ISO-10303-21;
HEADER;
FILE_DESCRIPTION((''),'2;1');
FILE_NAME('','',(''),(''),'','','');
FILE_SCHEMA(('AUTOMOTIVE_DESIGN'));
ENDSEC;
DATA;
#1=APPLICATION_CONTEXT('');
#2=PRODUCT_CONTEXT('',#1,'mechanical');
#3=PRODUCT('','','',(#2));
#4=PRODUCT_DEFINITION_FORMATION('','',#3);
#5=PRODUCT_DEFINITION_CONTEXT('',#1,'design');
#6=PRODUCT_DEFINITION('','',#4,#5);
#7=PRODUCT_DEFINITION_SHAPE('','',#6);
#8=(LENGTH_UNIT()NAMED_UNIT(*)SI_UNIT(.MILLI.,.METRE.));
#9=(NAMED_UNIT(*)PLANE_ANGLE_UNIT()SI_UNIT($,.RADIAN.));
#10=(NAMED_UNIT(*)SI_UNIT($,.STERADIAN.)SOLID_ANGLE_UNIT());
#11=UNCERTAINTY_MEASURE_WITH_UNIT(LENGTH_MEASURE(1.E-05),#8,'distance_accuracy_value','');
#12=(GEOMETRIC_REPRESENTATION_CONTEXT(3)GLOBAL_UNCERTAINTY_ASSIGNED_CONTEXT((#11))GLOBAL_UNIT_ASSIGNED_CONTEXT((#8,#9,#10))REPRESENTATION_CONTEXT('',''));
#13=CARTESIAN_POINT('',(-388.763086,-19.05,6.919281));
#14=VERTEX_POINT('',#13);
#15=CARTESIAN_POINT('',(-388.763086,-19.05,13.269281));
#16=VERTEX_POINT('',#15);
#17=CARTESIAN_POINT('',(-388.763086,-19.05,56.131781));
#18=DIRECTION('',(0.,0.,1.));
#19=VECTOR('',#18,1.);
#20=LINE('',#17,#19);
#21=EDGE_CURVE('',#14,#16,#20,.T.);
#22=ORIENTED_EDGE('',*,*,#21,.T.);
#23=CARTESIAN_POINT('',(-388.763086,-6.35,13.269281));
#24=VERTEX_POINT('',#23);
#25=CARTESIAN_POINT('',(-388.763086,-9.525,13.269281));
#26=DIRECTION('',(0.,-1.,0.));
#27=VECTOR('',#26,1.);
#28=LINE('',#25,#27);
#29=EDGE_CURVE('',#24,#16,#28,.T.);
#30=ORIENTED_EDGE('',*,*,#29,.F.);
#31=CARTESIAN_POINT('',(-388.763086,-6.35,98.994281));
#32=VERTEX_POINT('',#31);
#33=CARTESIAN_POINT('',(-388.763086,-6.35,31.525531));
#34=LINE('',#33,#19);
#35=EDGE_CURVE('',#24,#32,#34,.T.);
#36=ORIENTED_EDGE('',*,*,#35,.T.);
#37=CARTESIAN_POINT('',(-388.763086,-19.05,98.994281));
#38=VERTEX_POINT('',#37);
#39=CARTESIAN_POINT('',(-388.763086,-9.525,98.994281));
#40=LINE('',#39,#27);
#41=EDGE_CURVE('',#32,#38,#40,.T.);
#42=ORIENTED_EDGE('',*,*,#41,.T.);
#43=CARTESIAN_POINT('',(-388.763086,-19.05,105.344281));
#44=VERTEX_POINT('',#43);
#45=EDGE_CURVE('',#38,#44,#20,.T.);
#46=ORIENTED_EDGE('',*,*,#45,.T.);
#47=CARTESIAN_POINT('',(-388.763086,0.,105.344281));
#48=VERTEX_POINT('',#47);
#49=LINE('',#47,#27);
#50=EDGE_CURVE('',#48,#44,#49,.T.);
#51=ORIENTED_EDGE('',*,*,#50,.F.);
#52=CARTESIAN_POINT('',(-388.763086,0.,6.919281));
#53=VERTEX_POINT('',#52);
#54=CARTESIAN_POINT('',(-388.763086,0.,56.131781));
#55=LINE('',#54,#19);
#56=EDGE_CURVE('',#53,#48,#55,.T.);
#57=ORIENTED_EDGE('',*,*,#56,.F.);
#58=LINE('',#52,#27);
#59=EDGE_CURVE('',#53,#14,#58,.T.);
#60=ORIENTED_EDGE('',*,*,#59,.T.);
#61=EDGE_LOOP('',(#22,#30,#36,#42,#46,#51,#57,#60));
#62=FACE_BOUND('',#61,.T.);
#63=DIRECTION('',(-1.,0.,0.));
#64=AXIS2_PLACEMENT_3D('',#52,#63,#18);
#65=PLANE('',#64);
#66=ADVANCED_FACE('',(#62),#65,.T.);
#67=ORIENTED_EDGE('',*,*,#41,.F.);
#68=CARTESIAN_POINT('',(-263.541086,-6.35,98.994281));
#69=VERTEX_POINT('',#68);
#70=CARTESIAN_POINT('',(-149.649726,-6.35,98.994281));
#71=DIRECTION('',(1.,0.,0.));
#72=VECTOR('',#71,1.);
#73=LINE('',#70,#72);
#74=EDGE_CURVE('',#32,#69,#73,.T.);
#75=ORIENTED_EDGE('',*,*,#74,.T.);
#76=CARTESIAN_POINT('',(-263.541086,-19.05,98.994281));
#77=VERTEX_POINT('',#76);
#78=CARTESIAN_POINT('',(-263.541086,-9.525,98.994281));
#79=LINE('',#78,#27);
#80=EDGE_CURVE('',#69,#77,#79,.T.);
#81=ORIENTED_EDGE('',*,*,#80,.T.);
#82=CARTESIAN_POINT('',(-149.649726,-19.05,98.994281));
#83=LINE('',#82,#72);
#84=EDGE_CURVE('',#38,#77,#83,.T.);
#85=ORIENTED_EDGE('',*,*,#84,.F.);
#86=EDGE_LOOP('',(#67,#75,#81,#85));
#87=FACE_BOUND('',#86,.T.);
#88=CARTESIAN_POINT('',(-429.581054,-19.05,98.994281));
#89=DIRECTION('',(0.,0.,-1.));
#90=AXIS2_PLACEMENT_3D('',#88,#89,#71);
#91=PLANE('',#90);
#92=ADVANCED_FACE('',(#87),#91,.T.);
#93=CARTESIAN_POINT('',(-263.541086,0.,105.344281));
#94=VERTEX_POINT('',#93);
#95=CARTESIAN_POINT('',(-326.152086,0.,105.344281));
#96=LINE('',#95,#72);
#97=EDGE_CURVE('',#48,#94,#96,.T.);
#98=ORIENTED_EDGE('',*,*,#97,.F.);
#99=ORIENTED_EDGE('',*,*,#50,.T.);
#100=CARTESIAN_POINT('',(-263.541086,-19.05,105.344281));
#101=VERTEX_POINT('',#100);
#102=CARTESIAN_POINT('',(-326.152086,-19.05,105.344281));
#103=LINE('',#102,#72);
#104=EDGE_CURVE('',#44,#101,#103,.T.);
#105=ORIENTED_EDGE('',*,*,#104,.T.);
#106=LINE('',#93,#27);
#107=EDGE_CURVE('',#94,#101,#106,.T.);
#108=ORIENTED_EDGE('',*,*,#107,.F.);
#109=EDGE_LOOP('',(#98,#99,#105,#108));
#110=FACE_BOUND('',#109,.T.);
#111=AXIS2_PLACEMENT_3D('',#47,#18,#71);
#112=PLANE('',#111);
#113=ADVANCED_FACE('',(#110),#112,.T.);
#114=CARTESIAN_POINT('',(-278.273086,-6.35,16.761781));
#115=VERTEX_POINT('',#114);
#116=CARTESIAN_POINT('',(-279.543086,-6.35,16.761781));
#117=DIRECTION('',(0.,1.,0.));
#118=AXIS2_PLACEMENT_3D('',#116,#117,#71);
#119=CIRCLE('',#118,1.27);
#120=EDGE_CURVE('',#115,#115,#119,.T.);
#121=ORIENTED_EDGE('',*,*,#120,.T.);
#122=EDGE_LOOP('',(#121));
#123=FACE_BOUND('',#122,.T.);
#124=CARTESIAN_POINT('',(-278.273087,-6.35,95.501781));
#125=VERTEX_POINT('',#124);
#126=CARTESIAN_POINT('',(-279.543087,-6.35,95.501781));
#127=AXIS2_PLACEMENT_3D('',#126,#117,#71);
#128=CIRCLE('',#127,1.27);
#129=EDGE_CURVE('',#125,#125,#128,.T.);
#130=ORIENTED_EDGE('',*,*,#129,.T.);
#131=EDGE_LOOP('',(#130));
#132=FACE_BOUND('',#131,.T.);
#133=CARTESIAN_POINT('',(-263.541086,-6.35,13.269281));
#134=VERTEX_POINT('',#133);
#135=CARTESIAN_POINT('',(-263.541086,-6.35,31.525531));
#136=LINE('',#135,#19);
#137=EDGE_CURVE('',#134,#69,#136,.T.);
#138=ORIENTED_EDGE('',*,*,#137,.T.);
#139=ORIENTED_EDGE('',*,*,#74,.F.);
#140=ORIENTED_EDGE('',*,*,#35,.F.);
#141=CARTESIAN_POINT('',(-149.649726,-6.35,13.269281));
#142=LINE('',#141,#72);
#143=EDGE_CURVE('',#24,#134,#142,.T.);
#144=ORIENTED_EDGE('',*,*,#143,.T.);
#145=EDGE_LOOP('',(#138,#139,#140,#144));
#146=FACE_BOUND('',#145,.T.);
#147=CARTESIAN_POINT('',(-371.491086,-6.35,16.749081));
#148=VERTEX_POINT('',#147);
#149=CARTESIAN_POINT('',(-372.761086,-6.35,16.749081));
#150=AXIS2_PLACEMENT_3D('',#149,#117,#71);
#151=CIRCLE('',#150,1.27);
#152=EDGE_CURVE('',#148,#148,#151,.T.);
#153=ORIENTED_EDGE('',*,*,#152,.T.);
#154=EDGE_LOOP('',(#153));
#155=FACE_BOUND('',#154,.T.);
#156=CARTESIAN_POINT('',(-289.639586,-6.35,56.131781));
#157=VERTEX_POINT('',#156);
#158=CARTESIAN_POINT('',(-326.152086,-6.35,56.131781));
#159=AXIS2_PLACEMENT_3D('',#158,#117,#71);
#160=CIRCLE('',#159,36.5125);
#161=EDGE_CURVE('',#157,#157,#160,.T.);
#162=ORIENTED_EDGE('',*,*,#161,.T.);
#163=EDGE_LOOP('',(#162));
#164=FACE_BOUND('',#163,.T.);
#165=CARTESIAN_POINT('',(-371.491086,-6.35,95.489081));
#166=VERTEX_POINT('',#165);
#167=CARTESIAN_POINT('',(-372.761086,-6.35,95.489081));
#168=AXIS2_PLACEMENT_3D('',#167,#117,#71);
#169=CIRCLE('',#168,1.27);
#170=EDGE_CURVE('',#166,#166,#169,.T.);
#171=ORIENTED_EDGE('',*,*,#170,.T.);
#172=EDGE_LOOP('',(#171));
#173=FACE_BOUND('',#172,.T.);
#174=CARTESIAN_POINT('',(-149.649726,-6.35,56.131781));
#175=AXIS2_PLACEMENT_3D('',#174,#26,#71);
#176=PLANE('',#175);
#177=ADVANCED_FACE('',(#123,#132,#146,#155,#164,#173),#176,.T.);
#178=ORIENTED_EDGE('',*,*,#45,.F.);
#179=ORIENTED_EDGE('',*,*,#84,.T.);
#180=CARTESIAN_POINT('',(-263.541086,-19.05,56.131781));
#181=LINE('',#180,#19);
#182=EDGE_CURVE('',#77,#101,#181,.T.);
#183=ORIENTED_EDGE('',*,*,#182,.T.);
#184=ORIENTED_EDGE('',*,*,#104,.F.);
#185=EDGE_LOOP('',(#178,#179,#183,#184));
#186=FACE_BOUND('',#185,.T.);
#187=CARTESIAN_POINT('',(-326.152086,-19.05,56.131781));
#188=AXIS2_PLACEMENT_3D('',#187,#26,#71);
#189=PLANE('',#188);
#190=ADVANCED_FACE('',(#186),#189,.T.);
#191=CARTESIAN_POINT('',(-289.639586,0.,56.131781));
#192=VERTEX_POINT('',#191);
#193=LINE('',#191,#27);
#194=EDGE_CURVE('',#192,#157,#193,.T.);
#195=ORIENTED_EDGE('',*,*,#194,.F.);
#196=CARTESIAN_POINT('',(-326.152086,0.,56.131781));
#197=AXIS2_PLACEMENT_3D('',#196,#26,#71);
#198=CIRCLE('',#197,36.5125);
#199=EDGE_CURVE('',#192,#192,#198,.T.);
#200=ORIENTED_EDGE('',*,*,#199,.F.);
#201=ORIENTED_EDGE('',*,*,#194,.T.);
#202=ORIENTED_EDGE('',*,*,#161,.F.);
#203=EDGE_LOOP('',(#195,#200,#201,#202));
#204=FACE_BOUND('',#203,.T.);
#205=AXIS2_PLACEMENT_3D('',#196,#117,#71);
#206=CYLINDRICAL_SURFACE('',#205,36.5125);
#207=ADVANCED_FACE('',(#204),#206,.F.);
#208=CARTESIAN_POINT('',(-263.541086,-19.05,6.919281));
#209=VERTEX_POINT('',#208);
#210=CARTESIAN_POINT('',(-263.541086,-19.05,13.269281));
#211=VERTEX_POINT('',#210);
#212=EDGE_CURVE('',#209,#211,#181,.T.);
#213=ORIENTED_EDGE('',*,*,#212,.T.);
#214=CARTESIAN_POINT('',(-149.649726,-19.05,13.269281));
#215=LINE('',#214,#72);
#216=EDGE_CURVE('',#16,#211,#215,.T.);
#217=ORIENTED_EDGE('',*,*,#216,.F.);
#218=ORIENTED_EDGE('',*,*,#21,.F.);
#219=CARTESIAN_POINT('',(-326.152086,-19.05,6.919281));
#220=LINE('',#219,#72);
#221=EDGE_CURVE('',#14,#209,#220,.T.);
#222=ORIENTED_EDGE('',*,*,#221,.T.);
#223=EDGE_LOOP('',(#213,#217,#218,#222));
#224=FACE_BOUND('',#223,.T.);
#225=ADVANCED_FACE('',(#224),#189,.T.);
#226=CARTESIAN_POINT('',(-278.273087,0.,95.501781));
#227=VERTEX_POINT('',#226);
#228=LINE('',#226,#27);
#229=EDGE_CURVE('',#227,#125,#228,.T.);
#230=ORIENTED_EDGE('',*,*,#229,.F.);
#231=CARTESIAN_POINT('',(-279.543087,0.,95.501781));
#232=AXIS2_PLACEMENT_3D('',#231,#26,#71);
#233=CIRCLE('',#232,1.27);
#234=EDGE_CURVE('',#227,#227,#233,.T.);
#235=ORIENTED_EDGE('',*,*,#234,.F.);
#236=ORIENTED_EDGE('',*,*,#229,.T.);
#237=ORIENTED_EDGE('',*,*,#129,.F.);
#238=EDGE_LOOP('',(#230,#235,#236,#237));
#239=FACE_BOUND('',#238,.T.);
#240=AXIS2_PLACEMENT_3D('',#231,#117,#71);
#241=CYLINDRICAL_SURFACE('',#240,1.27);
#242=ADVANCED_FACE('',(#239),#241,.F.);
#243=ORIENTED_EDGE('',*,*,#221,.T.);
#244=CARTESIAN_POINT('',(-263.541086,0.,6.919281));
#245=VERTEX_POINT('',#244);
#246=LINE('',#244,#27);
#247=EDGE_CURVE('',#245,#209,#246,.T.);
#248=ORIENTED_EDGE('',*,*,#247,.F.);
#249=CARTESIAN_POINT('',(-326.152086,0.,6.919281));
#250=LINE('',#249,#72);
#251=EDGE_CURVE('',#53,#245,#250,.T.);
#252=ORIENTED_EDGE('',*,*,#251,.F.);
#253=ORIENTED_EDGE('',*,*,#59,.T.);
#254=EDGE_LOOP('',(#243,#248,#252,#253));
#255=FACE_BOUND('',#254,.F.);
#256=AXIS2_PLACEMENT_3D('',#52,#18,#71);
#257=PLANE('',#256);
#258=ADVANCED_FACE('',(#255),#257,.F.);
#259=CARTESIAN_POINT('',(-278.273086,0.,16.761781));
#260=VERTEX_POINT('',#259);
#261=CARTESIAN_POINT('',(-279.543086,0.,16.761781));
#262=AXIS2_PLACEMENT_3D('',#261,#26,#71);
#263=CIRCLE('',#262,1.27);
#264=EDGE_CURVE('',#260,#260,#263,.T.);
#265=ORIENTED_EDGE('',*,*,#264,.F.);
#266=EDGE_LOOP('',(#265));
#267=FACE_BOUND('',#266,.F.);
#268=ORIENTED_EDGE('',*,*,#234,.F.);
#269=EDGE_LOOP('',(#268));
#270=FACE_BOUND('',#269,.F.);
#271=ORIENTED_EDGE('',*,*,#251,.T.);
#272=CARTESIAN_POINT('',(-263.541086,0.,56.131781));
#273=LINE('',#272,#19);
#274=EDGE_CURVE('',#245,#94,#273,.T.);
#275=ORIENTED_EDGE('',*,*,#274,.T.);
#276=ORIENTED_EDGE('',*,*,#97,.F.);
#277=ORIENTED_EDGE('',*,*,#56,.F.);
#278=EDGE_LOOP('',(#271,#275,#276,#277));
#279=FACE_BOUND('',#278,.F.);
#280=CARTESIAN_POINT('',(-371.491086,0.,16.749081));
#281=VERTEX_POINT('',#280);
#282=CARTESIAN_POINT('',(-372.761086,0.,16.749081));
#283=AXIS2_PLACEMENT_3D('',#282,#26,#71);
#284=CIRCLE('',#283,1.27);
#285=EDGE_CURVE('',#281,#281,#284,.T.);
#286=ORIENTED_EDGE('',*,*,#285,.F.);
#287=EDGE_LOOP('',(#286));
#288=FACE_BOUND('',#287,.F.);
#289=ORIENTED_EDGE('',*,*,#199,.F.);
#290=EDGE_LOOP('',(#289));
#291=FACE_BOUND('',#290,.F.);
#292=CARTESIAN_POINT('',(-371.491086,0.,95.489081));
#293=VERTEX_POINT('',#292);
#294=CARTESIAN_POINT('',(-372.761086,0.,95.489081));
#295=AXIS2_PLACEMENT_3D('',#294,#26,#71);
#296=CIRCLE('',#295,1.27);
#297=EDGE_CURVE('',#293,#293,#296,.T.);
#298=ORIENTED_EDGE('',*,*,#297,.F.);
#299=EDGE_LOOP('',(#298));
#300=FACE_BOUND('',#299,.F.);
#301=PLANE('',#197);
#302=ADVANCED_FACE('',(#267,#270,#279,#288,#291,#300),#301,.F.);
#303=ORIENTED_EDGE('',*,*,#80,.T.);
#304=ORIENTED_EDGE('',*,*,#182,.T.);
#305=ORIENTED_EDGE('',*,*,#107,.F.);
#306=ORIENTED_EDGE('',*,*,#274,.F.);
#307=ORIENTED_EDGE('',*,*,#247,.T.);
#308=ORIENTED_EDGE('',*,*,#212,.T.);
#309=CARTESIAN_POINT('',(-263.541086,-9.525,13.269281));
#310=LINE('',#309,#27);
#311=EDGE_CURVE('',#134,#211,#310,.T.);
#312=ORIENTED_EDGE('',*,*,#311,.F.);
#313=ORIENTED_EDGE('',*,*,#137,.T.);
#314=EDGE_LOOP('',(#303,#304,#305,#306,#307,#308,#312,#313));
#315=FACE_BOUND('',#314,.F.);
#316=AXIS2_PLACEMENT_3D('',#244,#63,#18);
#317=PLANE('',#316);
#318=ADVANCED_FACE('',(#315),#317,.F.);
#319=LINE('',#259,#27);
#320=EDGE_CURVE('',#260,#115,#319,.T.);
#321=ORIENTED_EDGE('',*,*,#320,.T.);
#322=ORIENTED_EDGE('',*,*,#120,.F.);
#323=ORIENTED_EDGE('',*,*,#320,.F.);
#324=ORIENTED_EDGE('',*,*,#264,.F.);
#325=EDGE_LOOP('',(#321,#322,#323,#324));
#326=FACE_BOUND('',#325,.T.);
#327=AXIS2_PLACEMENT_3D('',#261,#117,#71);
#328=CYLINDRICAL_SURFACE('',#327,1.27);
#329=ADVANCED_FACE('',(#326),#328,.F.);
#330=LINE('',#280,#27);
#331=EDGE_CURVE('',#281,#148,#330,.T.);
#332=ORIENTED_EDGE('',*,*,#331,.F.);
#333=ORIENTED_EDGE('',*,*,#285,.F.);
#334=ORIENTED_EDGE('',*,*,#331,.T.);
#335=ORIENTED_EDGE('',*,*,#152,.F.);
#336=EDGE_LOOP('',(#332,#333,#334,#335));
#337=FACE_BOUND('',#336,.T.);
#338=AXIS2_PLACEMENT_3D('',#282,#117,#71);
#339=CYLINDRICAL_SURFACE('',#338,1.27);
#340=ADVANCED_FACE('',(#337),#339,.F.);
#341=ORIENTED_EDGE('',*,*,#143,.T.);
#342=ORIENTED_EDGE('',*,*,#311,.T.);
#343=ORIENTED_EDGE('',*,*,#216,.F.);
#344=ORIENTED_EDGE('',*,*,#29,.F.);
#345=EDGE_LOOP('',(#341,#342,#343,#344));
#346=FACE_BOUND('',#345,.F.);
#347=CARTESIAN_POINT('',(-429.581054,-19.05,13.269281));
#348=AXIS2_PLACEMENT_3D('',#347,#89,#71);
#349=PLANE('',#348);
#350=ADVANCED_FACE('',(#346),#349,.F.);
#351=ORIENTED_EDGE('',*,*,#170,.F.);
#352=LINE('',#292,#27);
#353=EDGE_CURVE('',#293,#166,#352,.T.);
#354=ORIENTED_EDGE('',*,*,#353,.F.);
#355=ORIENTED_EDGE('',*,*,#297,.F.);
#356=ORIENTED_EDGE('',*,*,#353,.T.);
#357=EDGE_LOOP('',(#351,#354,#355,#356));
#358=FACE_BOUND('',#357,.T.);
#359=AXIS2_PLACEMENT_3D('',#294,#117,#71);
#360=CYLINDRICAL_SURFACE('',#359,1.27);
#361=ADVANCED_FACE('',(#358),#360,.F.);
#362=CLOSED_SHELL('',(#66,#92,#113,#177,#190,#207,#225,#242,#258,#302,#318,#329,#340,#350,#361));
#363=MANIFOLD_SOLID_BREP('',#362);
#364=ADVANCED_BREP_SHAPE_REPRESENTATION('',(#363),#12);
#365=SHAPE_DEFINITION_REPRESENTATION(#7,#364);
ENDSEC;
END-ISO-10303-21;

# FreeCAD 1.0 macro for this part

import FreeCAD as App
import Part
import Sketcher

V = App.Vector
Q = App.Units.Quantity


def add_polygon(sketch, points):
    """Adds a closed chain of lines whose ends are joined by coincident constraints."""
    first, n = sketch.GeometryCount, len(points)
    for a, b in zip(points, points[1:] + points[:1]):
        sketch.addGeometry(Part.LineSegment(App.Vector(*a, 0), App.Vector(*b, 0)), False)
    for i in range(n):
        sketch.addConstraint(Sketcher.Constraint("Coincident", first + i, 2, first + (i + 1) % n, 1))

doc = App.newDocument("Part")
body = doc.addObject("PartDesign::Body", "Body")

sketch1 = body.newObject("Sketcher::SketchObject", "Sketch")
sketch1.AttachmentSupport = (doc.getObject("XZ_Plane"), [""])
sketch1.MapMode = "FlatFace"
add_polygon(sketch1, [(-388.8, 105.3), (-388.8, 6.9), (-263.5, 6.9), (-263.5, 105.3)])
sketch1.addGeometry(Part.Circle(V(-372.8, 16.7, 0), V(0, 0, 1), 1.3), False)
sketch1.addGeometry(Part.Circle(V(-279.5, 16.8, 0), V(0, 0, 1), 1.3), False)
sketch1.addGeometry(Part.Circle(V(-326.2, 56.1, 0), V(0, 0, 1), 36.5), False)
sketch1.addGeometry(Part.Circle(V(-372.8, 95.5, 0), V(0, 0, 1), 1.3), False)
sketch1.addGeometry(Part.Circle(V(-279.5, 95.5, 0), V(0, 0, 1), 1.3), False)
sketch1.addConstraint(Sketcher.Constraint("Vertical", 0))
sketch1.addConstraint(Sketcher.Constraint("Horizontal", 1))
sketch1.addConstraint(Sketcher.Constraint("Vertical", 2))
sketch1.addConstraint(Sketcher.Constraint("Horizontal", 3))
sketch1.addConstraint(Sketcher.Constraint("Equal", 4, 5))
sketch1.addConstraint(Sketcher.Constraint("Equal", 5, 7))
sketch1.addConstraint(Sketcher.Constraint("Equal", 7, 8))
sketch1.addConstraint(Sketcher.Constraint("Vertical", 4, 3, 7, 3))
sketch1.addConstraint(Sketcher.Constraint("Vertical", 5, 3, 8, 3))
sketch1.addConstraint(Sketcher.Constraint("Diameter", 4, Q("0.1 in")))
sketch1.addConstraint(Sketcher.Constraint("Diameter", 6, Q("2.875 in")))
sketch1.addConstraint(Sketcher.Constraint("DistanceX", 1, 1, 1, 2, Q("4.93 in")))
sketch1.addConstraint(Sketcher.Constraint("DistanceY", 4, 3, 7, 3, Q("3.1 in")))
sketch1.addConstraint(Sketcher.Constraint("DistanceY", 5, 3, 8, 3, Q("3.1 in")))
sketch1.addConstraint(Sketcher.Constraint("DistanceX", 0, 2, 5, 3, Q("4.3 in")))
sketch1.addConstraint(Sketcher.Constraint("DistanceX", 4, 3, 1, 2, Q("4.3 in")))
sketch1.addConstraint(Sketcher.Constraint("DistanceY", 0, 2, 0, 1, Q("3.875 in")))
sketch1.addConstraint(Sketcher.Constraint("DistanceY", 5, 3, 6, 3, Q("1.55 in")))
sketch1.addConstraint(Sketcher.Constraint("DistanceX", 6, 3, 5, 3, Q("1.835 in")))
sketch1.addConstraint(Sketcher.Constraint("DistanceY", 0, 2, 4, 3, Q("0.387 in")))
sketch1.addConstraint(Sketcher.Constraint("DistanceY", 0, 2, 6, 3, Q("1.9375 in")))
sketch1.addConstraint(Sketcher.Constraint("DistanceY", -1, 1, 4, 3, 16.749081))
sketch1.addConstraint(Sketcher.Constraint("DistanceX", 4, 3, -1, 1, 372.761086))
pad1 = body.newObject("PartDesign::Pad", "Pad")
pad1.Profile = sketch1
pad1.Length = Q("0.75 in")

sketch2 = body.newObject("Sketcher::SketchObject", "Sketch001")
sketch2.AttachmentSupport = (doc.getObject("XZ_Plane"), [""])
sketch2.MapMode = "FlatFace"
sketch2.AttachmentOffset = App.Placement(V(0, 0, 0.75 * 25.4), App.Rotation())
add_polygon(sketch2, [(-430, 99), (-430, 13), (130, 13), (130, 99)])
sketch2.addConstraint(Sketcher.Constraint("Vertical", 0))
sketch2.addConstraint(Sketcher.Constraint("Horizontal", 1))
sketch2.addConstraint(Sketcher.Constraint("Vertical", 2))
sketch2.addConstraint(Sketcher.Constraint("Horizontal", 3))
sketch2.addConstraint(Sketcher.Constraint("DistanceY", 0, 2, 0, 1, Q("3.375 in")))
sketch2.addConstraint(Sketcher.Constraint("DistanceX", -1, 1, 1, 2, 130.281601))
sketch2.addConstraint(Sketcher.Constraint("DistanceX", 1, 1, 1, 2, 559.862655))
sketch2.addConstraint(Sketcher.Constraint("DistanceY", -1, 1, 0, 2, 13.269281))
pocket1 = body.newObject("PartDesign::Pocket", "Pocket")
pocket1.Profile = sketch2
pocket1.Length = Q("0.5 in")

sketch3 = body.newObject("Sketcher::SketchObject", "Sketch002")
sketch3.AttachmentSupport = (doc.getObject("XZ_Plane"), [""])
sketch3.MapMode = "FlatFace"
sketch3.AttachmentOffset = App.Placement(V(0, 0, 0.75 * 25.4), App.Rotation())
add_polygon(sketch3, [(-388.8, 99), (-388.8, 13.3), (-263.5, 13.3), (-263.5, 99)])
sketch3.addGeometry(Part.Circle(V(-372.8, 16.7, 0), V(0, 0, 1), 1.3), False)
sketch3.addGeometry(Part.Circle(V(-279.5, 16.8, 0), V(0, 0, 1), 1.3), False)
sketch3.addGeometry(Part.Circle(V(-326.2, 56.1, 0), V(0, 0, 1), 36.5), False)
sketch3.addGeometry(Part.Circle(V(-372.8, 95.5, 0), V(0, 0, 1), 1.3), False)
sketch3.addGeometry(Part.Circle(V(-279.5, 95.5, 0), V(0, 0, 1), 1.3), False)
sketch3.addConstraint(Sketcher.Constraint("Vertical", 0))
sketch3.addConstraint(Sketcher.Constraint("Horizontal", 1))
sketch3.addConstraint(Sketcher.Constraint("Vertical", 2))
sketch3.addConstraint(Sketcher.Constraint("Horizontal", 3))
sketch3.addConstraint(Sketcher.Constraint("Equal", 4, 5))
sketch3.addConstraint(Sketcher.Constraint("Equal", 5, 7))
sketch3.addConstraint(Sketcher.Constraint("Equal", 7, 8))
sketch3.addConstraint(Sketcher.Constraint("Vertical", 4, 3, 7, 3))
sketch3.addConstraint(Sketcher.Constraint("Vertical", 5, 3, 8, 3))
sketch3.addConstraint(Sketcher.Constraint("Diameter", 4, Q("0.1 in")))
sketch3.addConstraint(Sketcher.Constraint("Diameter", 6, Q("2.875 in")))
sketch3.addConstraint(Sketcher.Constraint("DistanceX", 1, 1, 1, 2, Q("4.93 in")))
sketch3.addConstraint(Sketcher.Constraint("DistanceY", 4, 3, 7, 3, Q("3.1 in")))
sketch3.addConstraint(Sketcher.Constraint("DistanceY", 5, 3, 8, 3, Q("3.1 in")))
sketch3.addConstraint(Sketcher.Constraint("DistanceX", 0, 2, 5, 3, Q("4.3 in")))
sketch3.addConstraint(Sketcher.Constraint("DistanceX", 4, 3, 1, 2, Q("4.3 in")))
sketch3.addConstraint(Sketcher.Constraint("DistanceY", 0, 2, 0, 1, Q("3.375 in")))
sketch3.addConstraint(Sketcher.Constraint("DistanceY", 5, 3, 6, 3, Q("1.55 in")))
sketch3.addConstraint(Sketcher.Constraint("DistanceX", 6, 3, 5, 3, Q("1.835 in")))
sketch3.addConstraint(Sketcher.Constraint("DistanceY", 0, 2, 4, 3, Q("0.137 in")))
sketch3.addConstraint(Sketcher.Constraint("DistanceY", 0, 2, 6, 3, Q("1.6875 in")))
sketch3.addConstraint(Sketcher.Constraint("DistanceY", -1, 1, 4, 3, 16.749081))
sketch3.addConstraint(Sketcher.Constraint("DistanceX", 4, 3, -1, 1, 372.761086))
pocket2 = body.newObject("PartDesign::Pocket", "Pocket001")
pocket2.Profile = sketch3
pocket2.Length = Q("0.5 in")

doc.recompute()
